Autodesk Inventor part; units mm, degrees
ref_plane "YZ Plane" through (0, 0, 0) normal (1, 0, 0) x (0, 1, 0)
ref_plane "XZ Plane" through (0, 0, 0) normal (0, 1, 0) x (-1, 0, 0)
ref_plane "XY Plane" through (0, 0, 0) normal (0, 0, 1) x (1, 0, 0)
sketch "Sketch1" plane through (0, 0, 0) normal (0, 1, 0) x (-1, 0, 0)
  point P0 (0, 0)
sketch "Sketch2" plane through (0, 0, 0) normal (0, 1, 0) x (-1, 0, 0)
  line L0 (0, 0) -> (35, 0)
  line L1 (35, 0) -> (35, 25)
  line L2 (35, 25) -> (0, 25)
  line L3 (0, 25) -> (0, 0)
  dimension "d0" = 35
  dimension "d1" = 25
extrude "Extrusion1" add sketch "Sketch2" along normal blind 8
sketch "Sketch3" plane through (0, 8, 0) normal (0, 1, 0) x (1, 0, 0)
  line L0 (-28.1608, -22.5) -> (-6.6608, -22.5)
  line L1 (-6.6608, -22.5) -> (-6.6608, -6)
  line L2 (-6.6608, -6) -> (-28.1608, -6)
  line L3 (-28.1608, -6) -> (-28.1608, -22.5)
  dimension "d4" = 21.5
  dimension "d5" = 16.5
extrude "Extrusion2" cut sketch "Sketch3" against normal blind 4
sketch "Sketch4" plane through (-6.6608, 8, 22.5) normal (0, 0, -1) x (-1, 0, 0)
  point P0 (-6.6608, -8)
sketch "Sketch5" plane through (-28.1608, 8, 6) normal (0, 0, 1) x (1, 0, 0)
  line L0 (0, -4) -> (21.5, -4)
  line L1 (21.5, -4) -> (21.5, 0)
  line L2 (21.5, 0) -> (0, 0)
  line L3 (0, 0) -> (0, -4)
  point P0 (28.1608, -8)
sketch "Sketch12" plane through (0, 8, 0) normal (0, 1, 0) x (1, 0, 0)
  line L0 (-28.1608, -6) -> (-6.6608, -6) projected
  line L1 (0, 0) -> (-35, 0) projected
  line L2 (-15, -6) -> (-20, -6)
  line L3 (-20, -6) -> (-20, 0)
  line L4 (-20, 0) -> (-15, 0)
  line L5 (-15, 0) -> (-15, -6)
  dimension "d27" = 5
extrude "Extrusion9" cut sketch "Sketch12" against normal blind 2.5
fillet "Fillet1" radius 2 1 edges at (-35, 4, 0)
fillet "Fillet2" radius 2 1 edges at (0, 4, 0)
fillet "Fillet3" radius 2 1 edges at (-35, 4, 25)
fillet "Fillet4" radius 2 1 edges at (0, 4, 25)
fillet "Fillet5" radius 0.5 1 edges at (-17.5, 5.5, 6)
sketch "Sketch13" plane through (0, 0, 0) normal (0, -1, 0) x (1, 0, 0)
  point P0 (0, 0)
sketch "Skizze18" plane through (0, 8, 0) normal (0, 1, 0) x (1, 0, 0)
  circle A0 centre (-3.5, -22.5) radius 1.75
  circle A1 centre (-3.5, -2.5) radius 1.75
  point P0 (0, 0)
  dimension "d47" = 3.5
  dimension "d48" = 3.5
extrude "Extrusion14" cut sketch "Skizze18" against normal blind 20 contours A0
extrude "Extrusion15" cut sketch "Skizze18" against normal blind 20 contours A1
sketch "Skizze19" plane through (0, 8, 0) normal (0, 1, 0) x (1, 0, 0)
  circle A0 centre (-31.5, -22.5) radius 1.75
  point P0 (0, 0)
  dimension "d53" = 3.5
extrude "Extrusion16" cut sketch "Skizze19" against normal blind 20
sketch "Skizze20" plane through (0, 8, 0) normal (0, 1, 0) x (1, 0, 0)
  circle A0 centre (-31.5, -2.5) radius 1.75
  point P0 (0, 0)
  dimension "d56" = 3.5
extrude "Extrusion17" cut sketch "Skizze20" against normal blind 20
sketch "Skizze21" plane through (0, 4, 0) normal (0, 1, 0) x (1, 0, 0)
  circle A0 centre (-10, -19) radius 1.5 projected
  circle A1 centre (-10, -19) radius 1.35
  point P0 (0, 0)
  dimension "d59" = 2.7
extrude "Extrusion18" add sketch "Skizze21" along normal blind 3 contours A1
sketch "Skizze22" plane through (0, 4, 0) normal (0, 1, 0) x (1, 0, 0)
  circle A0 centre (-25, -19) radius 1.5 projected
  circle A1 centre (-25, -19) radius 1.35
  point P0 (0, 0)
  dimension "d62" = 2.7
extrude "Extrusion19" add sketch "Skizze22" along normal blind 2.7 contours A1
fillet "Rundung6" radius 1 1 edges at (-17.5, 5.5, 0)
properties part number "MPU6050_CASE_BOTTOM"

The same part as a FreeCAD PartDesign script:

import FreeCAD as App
import Part
import Sketcher

V = App.Vector
Q = App.Units.Quantity


def edges_at(feature, points):
    """Names of the edges that pass closest to the given points."""
    edges = feature.Shape.Edges
    near = lambda p: min(range(len(edges)), key=lambda i: edges[i].distToShape(Part.Vertex(*p))[0])
    return sorted({f"Edge{near(p) + 1}" for p in points})


def add_polygon(sketch, points):
    """Adds a closed chain of lines whose ends are joined by coincident constraints."""
    first, n = sketch.GeometryCount, len(points)
    for a, b in zip(points, points[1:] + points[:1]):
        sketch.addGeometry(Part.LineSegment(App.Vector(*a, 0), App.Vector(*b, 0)), False)
    for i in range(n):
        sketch.addConstraint(Sketcher.Constraint("Coincident", first + i, 2, first + (i + 1) % n, 1))

doc = App.newDocument("Part")
body = doc.addObject("PartDesign::Body", "Body")

# Sketch on XZ plane
sketch1 = body.newObject("Sketcher::SketchObject", "Sketch")
sketch1.AttachmentSupport = (doc.getObject("XZ_Plane"), [""])
sketch1.MapMode = "FlatFace"
add_polygon(sketch1, [(0, 25), (0, 0), (-35, 0), (-35, 25)])  # lines 0-3
sketch1.addConstraint([
    Sketcher.Constraint("Vertical", 0),
    Sketcher.Constraint("Horizontal", 1),
    Sketcher.Constraint("Vertical", 2),
    Sketcher.Constraint("Horizontal", 3),
    Sketcher.Constraint("Coincident", 0, 2, -1, 1),
    Sketcher.Constraint("DistanceX", 1, 2, 1, 1, Q("35 mm")),
    Sketcher.Constraint("DistanceY", 0, 2, 0, 1, Q("25 mm")),
])
pad1 = body.newObject("PartDesign::Pad", "Pad")
pad1.Profile = sketch1
pad1.Length = 8
pad1.Reversed = True

# Sketch on XZ plane
sketch2 = body.newObject("Sketcher::SketchObject", "Sketch001")
sketch2.AttachmentSupport = (doc.getObject("XZ_Plane"), [""])
sketch2.MapMode = "FlatFace"
sketch2.AttachmentOffset = App.Placement(V(0, 0, -8), App.Rotation())
add_polygon(sketch2, [(-28, 6), (-28, 22), (-7, 22), (-7, 6)])  # lines 0-3
sketch2.addConstraint([
    Sketcher.Constraint("Vertical", 0),
    Sketcher.Constraint("Horizontal", 1),
    Sketcher.Constraint("Vertical", 2),
    Sketcher.Constraint("Horizontal", 3),
    Sketcher.Constraint("DistanceX", 1, 1, 1, 2, Q("21.5 mm")),
    Sketcher.Constraint("DistanceY", 0, 1, 0, 2, Q("16.5 mm")),
    Sketcher.Constraint("DistanceY", -1, 1, 2, 2, Q("6 mm")),
    Sketcher.Constraint("DistanceX", 0, 2, -1, 1, Q("28.1608 mm")),
])
pocket1 = body.newObject("PartDesign::Pocket", "Pocket")
pocket1.Profile = sketch2
pocket1.Length = 4
pocket1.Reversed = True

# Sketch on XZ plane
sketch3 = body.newObject("Sketcher::SketchObject", "Sketch002")
sketch3.AttachmentSupport = (doc.getObject("XZ_Plane"), [""])
sketch3.MapMode = "FlatFace"
sketch3.AttachmentOffset = App.Placement(V(0, 0, -8), App.Rotation())
add_polygon(sketch3, [(-20, 0), (-20, 6), (-15, 6), (-15, 0)])  # lines 0-3
sketch3.addConstraint([
    Sketcher.Constraint("Vertical", 0),
    Sketcher.Constraint("Horizontal", 1),
    Sketcher.Constraint("Vertical", 2),
    Sketcher.Constraint("Horizontal", 3),
    Sketcher.Constraint("PointOnObject", 2, 2, -1),
    Sketcher.Constraint("DistanceX", 1, 1, 1, 2, Q("5 mm")),
    Sketcher.Constraint("DistanceY", 0, 1, 0, 2, Q("6 mm")),
    Sketcher.Constraint("DistanceX", 0, 2, -1, 1, Q("20 mm")),
])
pocket2 = body.newObject("PartDesign::Pocket", "Pocket001")
pocket2.Profile = sketch3
pocket2.Length = 2.5
pocket2.Reversed = True
doc.recompute()

fillet = body.newObject("PartDesign::Fillet", "Fillet")
fillet.Base = (pocket2, edges_at(pocket2, [(-35, 4, 0)]))
fillet.Radius = 2
doc.recompute()

fillet2 = body.newObject("PartDesign::Fillet", "Fillet001")
fillet2.Base = (fillet, edges_at(fillet, [(0, 4, 0)]))
fillet2.Radius = 2
doc.recompute()

fillet3 = body.newObject("PartDesign::Fillet", "Fillet002")
fillet3.Base = (fillet2, edges_at(fillet2, [(-35, 4, 25)]))
fillet3.Radius = 2
doc.recompute()

fillet4 = body.newObject("PartDesign::Fillet", "Fillet003")
fillet4.Base = (fillet3, edges_at(fillet3, [(0, 4, 25)]))
fillet4.Radius = 2
doc.recompute()

fillet5 = body.newObject("PartDesign::Fillet", "Fillet004")
fillet5.Base = (fillet4, edges_at(fillet4, [(-17.5, 5.5, 6)]))
fillet5.Radius = 0.5

# Sketch on XZ plane
sketch4 = body.newObject("Sketcher::SketchObject", "Sketch003")
sketch4.AttachmentSupport = (doc.getObject("XZ_Plane"), [""])
sketch4.MapMode = "FlatFace"
sketch4.AttachmentOffset = App.Placement(V(0, 0, -8), App.Rotation())
sketch4.addGeometry(Part.Circle(V(-3.5, 22.5, 0), V(0, 0, 1), 1.8), False)
sketch4.addConstraint([
    Sketcher.Constraint("Diameter", 0, Q("3.5 mm")),
    Sketcher.Constraint("DistanceX", 0, 3, -1, 1, Q("3.5 mm")),
    Sketcher.Constraint("DistanceY", -1, 1, 0, 3, Q("22.5 mm")),
])
pocket3 = body.newObject("PartDesign::Pocket", "Pocket002")
pocket3.Profile = sketch4
pocket3.Length = 20
pocket3.Reversed = True

# Sketch on XZ plane
sketch5 = body.newObject("Sketcher::SketchObject", "Sketch004")
sketch5.AttachmentSupport = (doc.getObject("XZ_Plane"), [""])
sketch5.MapMode = "FlatFace"
sketch5.AttachmentOffset = App.Placement(V(0, 0, -8), App.Rotation())
sketch5.addGeometry(Part.Circle(V(-3.5, 2.5, 0), V(0, 0, 1), 1.8), False)
sketch5.addConstraint([
    Sketcher.Constraint("Diameter", 0, Q("3.5 mm")),
    Sketcher.Constraint("DistanceX", 0, 3, -1, 1, Q("3.5 mm")),
    Sketcher.Constraint("DistanceY", -1, 1, 0, 3, Q("2.5 mm")),
])
pocket4 = body.newObject("PartDesign::Pocket", "Pocket003")
pocket4.Profile = sketch5
pocket4.Length = 20
pocket4.Reversed = True

# Sketch on XZ plane
sketch6 = body.newObject("Sketcher::SketchObject", "Sketch005")
sketch6.AttachmentSupport = (doc.getObject("XZ_Plane"), [""])
sketch6.MapMode = "FlatFace"
sketch6.AttachmentOffset = App.Placement(V(0, 0, -8), App.Rotation())
sketch6.addGeometry(Part.Circle(V(-31.5, 22.5, 0), V(0, 0, 1), 1.8), False)
sketch6.addConstraint([
    Sketcher.Constraint("Diameter", 0, Q("3.5 mm")),
    Sketcher.Constraint("DistanceX", 0, 3, -1, 1, Q("31.5 mm")),
    Sketcher.Constraint("DistanceY", -1, 1, 0, 3, Q("22.5 mm")),
])
pocket5 = body.newObject("PartDesign::Pocket", "Pocket004")
pocket5.Profile = sketch6
pocket5.Length = 20
pocket5.Reversed = True

# Sketch on XZ plane
sketch7 = body.newObject("Sketcher::SketchObject", "Sketch006")
sketch7.AttachmentSupport = (doc.getObject("XZ_Plane"), [""])
sketch7.MapMode = "FlatFace"
sketch7.AttachmentOffset = App.Placement(V(0, 0, -8), App.Rotation())
sketch7.addGeometry(Part.Circle(V(-31.5, 2.5, 0), V(0, 0, 1), 1.8), False)
sketch7.addConstraint([
    Sketcher.Constraint("Diameter", 0, Q("3.5 mm")),
    Sketcher.Constraint("DistanceX", 0, 3, -1, 1, Q("31.5 mm")),
    Sketcher.Constraint("DistanceY", -1, 1, 0, 3, Q("2.5 mm")),
])
pocket6 = body.newObject("PartDesign::Pocket", "Pocket005")
pocket6.Profile = sketch7
pocket6.Length = 20
pocket6.Reversed = True

# Sketch on XZ plane
sketch8 = body.newObject("Sketcher::SketchObject", "Sketch007")
sketch8.AttachmentSupport = (doc.getObject("XZ_Plane"), [""])
sketch8.MapMode = "FlatFace"
sketch8.AttachmentOffset = App.Placement(V(0, 0, -4), App.Rotation())
sketch8.addGeometry(Part.Circle(V(-10, 19, 0), V(0, 0, 1), 1.4), False)
sketch8.addConstraint([
    Sketcher.Constraint("Diameter", 0, Q("2.7 mm")),
    Sketcher.Constraint("DistanceX", 0, 3, -1, 1, Q("10 mm")),
    Sketcher.Constraint("DistanceY", -1, 1, 0, 3, Q("19 mm")),
])
pad2 = body.newObject("PartDesign::Pad", "Pad001")
pad2.Profile = sketch8
pad2.Length = 3
pad2.Reversed = True

# Sketch on XZ plane
sketch9 = body.newObject("Sketcher::SketchObject", "Sketch008")
sketch9.AttachmentSupport = (doc.getObject("XZ_Plane"), [""])
sketch9.MapMode = "FlatFace"
sketch9.AttachmentOffset = App.Placement(V(0, 0, -4), App.Rotation())
sketch9.addGeometry(Part.Circle(V(-25, 19, 0), V(0, 0, 1), 1.4), False)
sketch9.addConstraint([
    Sketcher.Constraint("Diameter", 0, Q("2.7 mm")),
    Sketcher.Constraint("DistanceX", 0, 3, -1, 1, Q("25 mm")),
    Sketcher.Constraint("DistanceY", -1, 1, 0, 3, Q("19 mm")),
])
pad3 = body.newObject("PartDesign::Pad", "Pad002")
pad3.Profile = sketch9
pad3.Length = 2.7
pad3.Reversed = True
doc.recompute()

fillet6 = body.newObject("PartDesign::Fillet", "Fillet005")
fillet6.Base = (pad3, edges_at(pad3, [(-17.5, 5.5, 0)]))
fillet6.Radius = 1

doc.recompute()
